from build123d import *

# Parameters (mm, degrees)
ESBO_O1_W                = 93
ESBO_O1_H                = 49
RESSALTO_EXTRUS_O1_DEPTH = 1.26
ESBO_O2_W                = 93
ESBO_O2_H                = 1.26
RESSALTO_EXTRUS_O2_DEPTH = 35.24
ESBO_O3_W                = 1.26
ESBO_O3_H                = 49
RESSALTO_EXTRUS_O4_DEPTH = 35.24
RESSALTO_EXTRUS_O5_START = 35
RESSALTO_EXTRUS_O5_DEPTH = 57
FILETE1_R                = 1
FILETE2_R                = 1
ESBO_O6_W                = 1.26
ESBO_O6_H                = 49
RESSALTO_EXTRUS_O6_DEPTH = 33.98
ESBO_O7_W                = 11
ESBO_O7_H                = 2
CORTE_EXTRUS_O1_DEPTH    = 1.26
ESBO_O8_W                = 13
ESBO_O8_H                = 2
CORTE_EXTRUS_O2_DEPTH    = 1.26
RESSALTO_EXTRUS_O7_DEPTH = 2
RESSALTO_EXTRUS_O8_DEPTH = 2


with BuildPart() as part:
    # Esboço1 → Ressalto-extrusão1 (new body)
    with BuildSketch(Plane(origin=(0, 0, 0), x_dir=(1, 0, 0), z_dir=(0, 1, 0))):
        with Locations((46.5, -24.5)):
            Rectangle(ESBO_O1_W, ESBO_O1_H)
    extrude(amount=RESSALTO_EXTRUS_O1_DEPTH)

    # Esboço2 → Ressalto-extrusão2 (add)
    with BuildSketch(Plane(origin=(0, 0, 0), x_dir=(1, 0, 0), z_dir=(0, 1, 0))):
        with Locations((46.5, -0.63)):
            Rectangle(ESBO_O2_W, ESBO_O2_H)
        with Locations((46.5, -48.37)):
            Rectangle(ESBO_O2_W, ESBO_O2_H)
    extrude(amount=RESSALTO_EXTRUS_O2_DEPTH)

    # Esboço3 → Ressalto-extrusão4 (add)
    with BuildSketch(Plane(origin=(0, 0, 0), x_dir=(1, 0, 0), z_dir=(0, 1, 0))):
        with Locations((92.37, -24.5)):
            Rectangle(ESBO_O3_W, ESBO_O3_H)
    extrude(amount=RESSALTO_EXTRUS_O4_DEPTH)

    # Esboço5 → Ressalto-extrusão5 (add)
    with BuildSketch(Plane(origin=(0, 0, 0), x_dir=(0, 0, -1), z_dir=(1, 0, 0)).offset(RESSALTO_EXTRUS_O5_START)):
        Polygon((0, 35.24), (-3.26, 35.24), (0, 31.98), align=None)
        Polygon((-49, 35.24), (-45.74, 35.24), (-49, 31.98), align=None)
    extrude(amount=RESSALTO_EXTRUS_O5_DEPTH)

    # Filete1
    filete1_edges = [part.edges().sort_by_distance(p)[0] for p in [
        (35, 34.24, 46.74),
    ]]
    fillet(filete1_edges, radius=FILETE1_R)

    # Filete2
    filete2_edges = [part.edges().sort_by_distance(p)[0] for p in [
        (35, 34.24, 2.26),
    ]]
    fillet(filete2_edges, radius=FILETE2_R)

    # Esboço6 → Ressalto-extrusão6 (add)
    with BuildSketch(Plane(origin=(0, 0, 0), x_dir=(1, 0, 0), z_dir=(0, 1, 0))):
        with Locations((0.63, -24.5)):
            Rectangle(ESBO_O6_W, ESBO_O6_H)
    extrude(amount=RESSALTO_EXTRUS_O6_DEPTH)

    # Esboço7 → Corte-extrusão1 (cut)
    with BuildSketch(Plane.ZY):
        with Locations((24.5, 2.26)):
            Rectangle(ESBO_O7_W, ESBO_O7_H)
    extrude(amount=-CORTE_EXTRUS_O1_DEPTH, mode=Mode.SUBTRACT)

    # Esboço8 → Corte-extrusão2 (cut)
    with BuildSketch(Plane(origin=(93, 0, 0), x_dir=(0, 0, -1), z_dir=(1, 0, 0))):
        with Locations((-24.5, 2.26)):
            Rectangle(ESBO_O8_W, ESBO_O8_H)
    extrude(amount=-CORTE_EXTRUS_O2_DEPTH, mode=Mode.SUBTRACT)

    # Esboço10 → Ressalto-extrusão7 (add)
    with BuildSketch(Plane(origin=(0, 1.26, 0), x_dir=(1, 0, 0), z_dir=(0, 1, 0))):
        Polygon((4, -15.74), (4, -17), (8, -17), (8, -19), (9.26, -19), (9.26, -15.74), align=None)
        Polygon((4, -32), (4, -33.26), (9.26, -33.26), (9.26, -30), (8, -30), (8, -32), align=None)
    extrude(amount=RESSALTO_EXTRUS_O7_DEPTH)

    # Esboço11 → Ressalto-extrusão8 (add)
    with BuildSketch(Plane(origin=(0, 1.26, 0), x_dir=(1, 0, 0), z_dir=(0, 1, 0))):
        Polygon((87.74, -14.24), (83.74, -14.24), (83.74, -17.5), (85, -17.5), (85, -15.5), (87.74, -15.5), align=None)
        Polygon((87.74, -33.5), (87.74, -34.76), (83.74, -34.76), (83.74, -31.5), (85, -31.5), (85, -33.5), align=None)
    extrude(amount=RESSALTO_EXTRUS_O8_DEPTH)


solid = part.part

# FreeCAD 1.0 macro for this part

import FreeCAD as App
import Part
import Sketcher

V = App.Vector
Q = App.Units.Quantity


def edges_at(feature, points):
    """Names of the edges that pass closest to the given points."""
    edges = feature.Shape.Edges
    near = lambda p: min(range(len(edges)), key=lambda i: edges[i].distToShape(Part.Vertex(*p))[0])
    return sorted({f"Edge{near(p) + 1}" for p in points})


def add_polygon(sketch, points):
    """Adds a closed chain of lines whose ends are joined by coincident constraints."""
    first, n = sketch.GeometryCount, len(points)
    for a, b in zip(points, points[1:] + points[:1]):
        sketch.addGeometry(Part.LineSegment(App.Vector(*a, 0), App.Vector(*b, 0)), False)
    for i in range(n):
        sketch.addConstraint(Sketcher.Constraint("Coincident", first + i, 2, first + (i + 1) % n, 1))

doc = App.newDocument("Part")
body = doc.addObject("PartDesign::Body", "Body")

# Sketch on XZ plane
sketch1 = body.newObject("Sketcher::SketchObject", "Sketch")
sketch1.AttachmentSupport = (doc.getObject("XZ_Plane"), [""])
sketch1.MapMode = "FlatFace"
add_polygon(sketch1, [(0, 0), (0, 49), (93, 49), (93, 0)])  # lines 0-3
sketch1.addConstraint([
    Sketcher.Constraint("Vertical", 0),
    Sketcher.Constraint("Horizontal", 1),
    Sketcher.Constraint("Vertical", 2),
    Sketcher.Constraint("Horizontal", 3),
    Sketcher.Constraint("Coincident", 3, 2, -1, 1),
    Sketcher.Constraint("DistanceX", 1, 1, 1, 2, Q("93 mm")),
    Sketcher.Constraint("DistanceY", 0, 1, 0, 2, Q("49 mm")),
])
pad1 = body.newObject("PartDesign::Pad", "Pad")
pad1.Profile = sketch1
pad1.Length = 1.26
pad1.Reversed = True

# Sketch on XZ plane
sketch2 = body.newObject("Sketcher::SketchObject", "Sketch001")
sketch2.AttachmentSupport = (doc.getObject("XZ_Plane"), [""])
sketch2.MapMode = "FlatFace"
add_polygon(sketch2, [(0, 0), (0, 1.3), (93, 1.3), (93, 0)])  # lines 0-3
add_polygon(sketch2, [(0, 47.7), (0, 49), (93, 49), (93, 47.7)])  # lines 4-7
sketch2.addConstraint([
    Sketcher.Constraint("Vertical", 0),
    Sketcher.Constraint("Horizontal", 1),
    Sketcher.Constraint("Vertical", 2),
    Sketcher.Constraint("Horizontal", 3),
    Sketcher.Constraint("Vertical", 4),
    Sketcher.Constraint("Horizontal", 5),
    Sketcher.Constraint("Vertical", 6),
    Sketcher.Constraint("Horizontal", 7),
    Sketcher.Constraint("Coincident", 3, 2, -1, 1),
    Sketcher.Constraint("PointOnObject", 4, 2, -2),
    Sketcher.Constraint("Vertical", 2, 2, 5, 2),
    Sketcher.Constraint("Equal", 2, 4),
    Sketcher.Constraint("DistanceX", 1, 1, 1, 2, Q("93 mm")),
    Sketcher.Constraint("DistanceY", -1, 1, 4, 2, Q("49 mm")),
    Sketcher.Constraint("DistanceY", 0, 1, 0, 2, Q("1.26 mm")),
])
pad2 = body.newObject("PartDesign::Pad", "Pad001")
pad2.Profile = sketch2
pad2.Length = 35.24
pad2.Reversed = True

# Sketch on XZ plane
sketch3 = body.newObject("Sketcher::SketchObject", "Sketch002")
sketch3.AttachmentSupport = (doc.getObject("XZ_Plane"), [""])
sketch3.MapMode = "FlatFace"
add_polygon(sketch3, [(91.7, 0), (91.7, 49), (93, 49), (93, 0)])  # lines 0-3
sketch3.addConstraint([
    Sketcher.Constraint("Vertical", 0),
    Sketcher.Constraint("Horizontal", 1),
    Sketcher.Constraint("Vertical", 2),
    Sketcher.Constraint("Horizontal", 3),
    Sketcher.Constraint("PointOnObject", 2, 2, -1),
    Sketcher.Constraint("DistanceY", 0, 1, 0, 2, Q("49 mm")),
    Sketcher.Constraint("DistanceX", -1, 1, 1, 2, Q("93 mm")),
    Sketcher.Constraint("DistanceX", 1, 1, 1, 2, Q("1.26 mm")),
])
pad3 = body.newObject("PartDesign::Pad", "Pad002")
pad3.Profile = sketch3
pad3.Length = 35.24
pad3.Reversed = True

# Sketch on YZ plane
sketch4 = body.newObject("Sketcher::SketchObject", "Sketch003")
sketch4.AttachmentSupport = (doc.getObject("YZ_Plane"), [""])
sketch4.MapMode = "FlatFace"
sketch4.AttachmentOffset = App.Placement(V(0, 0, 35), App.Rotation())
add_polygon(sketch4, [(35.2, 0), (35.2, 3.3), (32, 0)])  # lines 0-2
add_polygon(sketch4, [(35.2, 45.7), (35.2, 49), (32, 49)])  # lines 3-5
sketch4.addConstraint([
    Sketcher.Constraint("Vertical", 0),
    Sketcher.Constraint("Horizontal", 2),
    Sketcher.Constraint("Vertical", 3),
    Sketcher.Constraint("Horizontal", 4),
    Sketcher.Constraint("PointOnObject", 1, 2, -1),
    Sketcher.Constraint("Perpendicular", 1, 5),
    Sketcher.Constraint("Vertical", 2, 2, 3, 2),
    Sketcher.Constraint("Vertical", 1, 2, 4, 2),
    Sketcher.Constraint("Equal", 4, 0),
    Sketcher.Constraint("DistanceY", -1, 1, 3, 2, Q("49 mm")),
    Sketcher.Constraint("DistanceX", 2, 1, 2, 2, Q("3.26 mm")),
    Sketcher.Constraint("DistanceX", -1, 1, 0, 2, Q("35.24 mm")),
])
pad4 = body.newObject("PartDesign::Pad", "Pad003")
pad4.Profile = sketch4
pad4.Length = 57
doc.recompute()

fillet = body.newObject("PartDesign::Fillet", "Fillet")
fillet.Base = (pad4, edges_at(pad4, [(35, 34.24, 46.74)]))
fillet.Radius = 1
doc.recompute()

fillet2 = body.newObject("PartDesign::Fillet", "Fillet001")
fillet2.Base = (fillet, edges_at(fillet, [(35, 34.24, 2.26)]))
fillet2.Radius = 1

# Sketch on XZ plane
sketch5 = body.newObject("Sketcher::SketchObject", "Sketch004")
sketch5.AttachmentSupport = (doc.getObject("XZ_Plane"), [""])
sketch5.MapMode = "FlatFace"
add_polygon(sketch5, [(0, 0), (0, 49), (1.3, 49), (1.3, 0)])  # lines 0-3
sketch5.addConstraint([
    Sketcher.Constraint("Vertical", 0),
    Sketcher.Constraint("Horizontal", 1),
    Sketcher.Constraint("Vertical", 2),
    Sketcher.Constraint("Horizontal", 3),
    Sketcher.Constraint("Coincident", 3, 2, -1, 1),
    Sketcher.Constraint("DistanceY", 0, 1, 0, 2, Q("49 mm")),
    Sketcher.Constraint("DistanceX", 1, 1, 1, 2, Q("1.26 mm")),
])
pad5 = body.newObject("PartDesign::Pad", "Pad004")
pad5.Profile = sketch5
pad5.Length = 33.98
pad5.Reversed = True

# Sketch on YZ plane
sketch6 = body.newObject("Sketcher::SketchObject", "Sketch005")
sketch6.AttachmentSupport = (doc.getObject("YZ_Plane"), [""])
sketch6.MapMode = "FlatFace"
add_polygon(sketch6, [(3.3, 19), (1.3, 19), (1.3, 30), (3.3, 30)])  # lines 0-3
sketch6.addConstraint([
    Sketcher.Constraint("Horizontal", 0),
    Sketcher.Constraint("Vertical", 1),
    Sketcher.Constraint("Horizontal", 2),
    Sketcher.Constraint("Vertical", 3),
    Sketcher.Constraint("DistanceX", 0, 2, 0, 1, Q("2 mm")),
    Sketcher.Constraint("DistanceY", 1, 1, 1, 2, Q("11 mm")),
    Sketcher.Constraint("DistanceY", -1, 1, 0, 2, Q("19 mm")),
    Sketcher.Constraint("DistanceX", -1, 1, 0, 2, Q("1.26 mm")),
])
pocket1 = body.newObject("PartDesign::Pocket", "Pocket")
pocket1.Profile = sketch6
pocket1.Length = 1.26
pocket1.Reversed = True

# Sketch on YZ plane
sketch7 = body.newObject("Sketcher::SketchObject", "Sketch006")
sketch7.AttachmentSupport = (doc.getObject("YZ_Plane"), [""])
sketch7.MapMode = "FlatFace"
sketch7.AttachmentOffset = App.Placement(V(0, 0, 93), App.Rotation())
add_polygon(sketch7, [(3.3, 31), (1.3, 31), (1.3, 18), (3.3, 18)])  # lines 0-3
sketch7.addConstraint([
    Sketcher.Constraint("Horizontal", 0),
    Sketcher.Constraint("Vertical", 1),
    Sketcher.Constraint("Horizontal", 2),
    Sketcher.Constraint("Vertical", 3),
    Sketcher.Constraint("DistanceX", 0, 2, 0, 1, Q("2 mm")),
    Sketcher.Constraint("DistanceY", 1, 2, 1, 1, Q("13 mm")),
    Sketcher.Constraint("DistanceY", -1, 1, 0, 2, Q("31 mm")),
    Sketcher.Constraint("DistanceX", -1, 1, 0, 2, Q("1.26 mm")),
])
pocket2 = body.newObject("PartDesign::Pocket", "Pocket001")
pocket2.Profile = sketch7
pocket2.Length = 1.26

# Sketch on XZ plane
sketch8 = body.newObject("Sketcher::SketchObject", "Sketch007")
sketch8.AttachmentSupport = (doc.getObject("XZ_Plane"), [""])
sketch8.MapMode = "FlatFace"
sketch8.AttachmentOffset = App.Placement(V(0, 0, -1.26), App.Rotation())
add_polygon(sketch8, [(4, 15.7), (4, 17), (8, 17), (8, 19), (9.3, 19), (9.3, 15.7)])  # lines 0-5
add_polygon(sketch8, [(4, 32), (4, 33.3), (9.3, 33.3), (9.3, 30), (8, 30), (8, 32)])  # lines 6-11
sketch8.addConstraint([
    Sketcher.Constraint("Vertical", 0),
    Sketcher.Constraint("Horizontal", 1),
    Sketcher.Constraint("Vertical", 2),
    Sketcher.Constraint("Horizontal", 3),
    Sketcher.Constraint("Vertical", 4),
    Sketcher.Constraint("Horizontal", 5),
    Sketcher.Constraint("Vertical", 6),
    Sketcher.Constraint("Horizontal", 7),
    Sketcher.Constraint("Vertical", 8),
    Sketcher.Constraint("Horizontal", 9),
    Sketcher.Constraint("Vertical", 10),
    Sketcher.Constraint("Horizontal", 11),
    Sketcher.Constraint("Vertical", 5, 2, 6, 2),
    Sketcher.Constraint("Vertical", 4, 2, 7, 2),
    Sketcher.Constraint("Vertical", 2, 2, 9, 2),
    Sketcher.Constraint("Equal", 9, 0),
    Sketcher.Constraint("Equal", 0, 6),
    Sketcher.Constraint("Equal", 4, 8),
    Sketcher.Constraint("DistanceX", 1, 1, 1, 2, Q("4 mm")),
    Sketcher.Constraint("DistanceY", 2, 1, 2, 2, Q("2 mm")),
    Sketcher.Constraint("DistanceX", -1, 1, 0, 2, Q("4 mm")),
    Sketcher.Constraint("DistanceY", -1, 1, 0, 2, Q("17 mm")),
    Sketcher.Constraint("DistanceY", -1, 1, 8, 2, Q("30 mm")),
    Sketcher.Constraint("DistanceX", 3, 1, 3, 2, Q("1.26 mm")),
])
pad6 = body.newObject("PartDesign::Pad", "Pad005")
pad6.Profile = sketch8
pad6.Length = 2
pad6.Reversed = True

# Sketch on XZ plane
sketch9 = body.newObject("Sketcher::SketchObject", "Sketch008")
sketch9.AttachmentSupport = (doc.getObject("XZ_Plane"), [""])
sketch9.MapMode = "FlatFace"
sketch9.AttachmentOffset = App.Placement(V(0, 0, -1.26), App.Rotation())
add_polygon(sketch9, [(87.7, 14.2), (83.7, 14.2), (83.7, 17.5), (85, 17.5), (85, 15.5), (87.7, 15.5)])  # lines 0-5
add_polygon(sketch9, [(87.7, 34.8), (87.7, 33.5), (85, 33.5), (85, 31.5), (83.7, 31.5), (83.7, 34.8)])  # lines 6-11
sketch9.addConstraint([
    Sketcher.Constraint("Horizontal", 0),
    Sketcher.Constraint("Vertical", 1),
    Sketcher.Constraint("Horizontal", 2),
    Sketcher.Constraint("Vertical", 3),
    Sketcher.Constraint("Horizontal", 4),
    Sketcher.Constraint("Vertical", 5),
    Sketcher.Constraint("Vertical", 6),
    Sketcher.Constraint("Horizontal", 7),
    Sketcher.Constraint("Vertical", 8),
    Sketcher.Constraint("Horizontal", 9),
    Sketcher.Constraint("Vertical", 10),
    Sketcher.Constraint("Horizontal", 11),
    Sketcher.Constraint("Vertical", 5, 2, 6, 2),
    Sketcher.Constraint("Vertical", 3, 2, 7, 2),
    Sketcher.Constraint("Vertical", 1, 2, 9, 2),
    Sketcher.Constraint("Equal", 9, 5),
    Sketcher.Constraint("Equal", 5, 6),
    Sketcher.Constraint("Equal", 3, 8),
    Sketcher.Constraint("DistanceX", 0, 2, 0, 1, Q("4 mm")),
    Sketcher.Constraint("DistanceY", 3, 2, 3, 1, Q("2 mm")),
    Sketcher.Constraint("DistanceX", -1, 1, 2, 2, Q("85 mm")),
    Sketcher.Constraint("DistanceY", 2, 2, 6, 2, Q("16 mm")),
    Sketcher.Constraint("DistanceX", 2, 1, 2, 2, Q("1.26 mm")),
    Sketcher.Constraint("DistanceY", -1, 1, 1, 2, Q("17.5 mm")),
])
pad7 = body.newObject("PartDesign::Pad", "Pad006")
pad7.Profile = sketch9
pad7.Length = 2
pad7.Reversed = True

doc.recompute()
